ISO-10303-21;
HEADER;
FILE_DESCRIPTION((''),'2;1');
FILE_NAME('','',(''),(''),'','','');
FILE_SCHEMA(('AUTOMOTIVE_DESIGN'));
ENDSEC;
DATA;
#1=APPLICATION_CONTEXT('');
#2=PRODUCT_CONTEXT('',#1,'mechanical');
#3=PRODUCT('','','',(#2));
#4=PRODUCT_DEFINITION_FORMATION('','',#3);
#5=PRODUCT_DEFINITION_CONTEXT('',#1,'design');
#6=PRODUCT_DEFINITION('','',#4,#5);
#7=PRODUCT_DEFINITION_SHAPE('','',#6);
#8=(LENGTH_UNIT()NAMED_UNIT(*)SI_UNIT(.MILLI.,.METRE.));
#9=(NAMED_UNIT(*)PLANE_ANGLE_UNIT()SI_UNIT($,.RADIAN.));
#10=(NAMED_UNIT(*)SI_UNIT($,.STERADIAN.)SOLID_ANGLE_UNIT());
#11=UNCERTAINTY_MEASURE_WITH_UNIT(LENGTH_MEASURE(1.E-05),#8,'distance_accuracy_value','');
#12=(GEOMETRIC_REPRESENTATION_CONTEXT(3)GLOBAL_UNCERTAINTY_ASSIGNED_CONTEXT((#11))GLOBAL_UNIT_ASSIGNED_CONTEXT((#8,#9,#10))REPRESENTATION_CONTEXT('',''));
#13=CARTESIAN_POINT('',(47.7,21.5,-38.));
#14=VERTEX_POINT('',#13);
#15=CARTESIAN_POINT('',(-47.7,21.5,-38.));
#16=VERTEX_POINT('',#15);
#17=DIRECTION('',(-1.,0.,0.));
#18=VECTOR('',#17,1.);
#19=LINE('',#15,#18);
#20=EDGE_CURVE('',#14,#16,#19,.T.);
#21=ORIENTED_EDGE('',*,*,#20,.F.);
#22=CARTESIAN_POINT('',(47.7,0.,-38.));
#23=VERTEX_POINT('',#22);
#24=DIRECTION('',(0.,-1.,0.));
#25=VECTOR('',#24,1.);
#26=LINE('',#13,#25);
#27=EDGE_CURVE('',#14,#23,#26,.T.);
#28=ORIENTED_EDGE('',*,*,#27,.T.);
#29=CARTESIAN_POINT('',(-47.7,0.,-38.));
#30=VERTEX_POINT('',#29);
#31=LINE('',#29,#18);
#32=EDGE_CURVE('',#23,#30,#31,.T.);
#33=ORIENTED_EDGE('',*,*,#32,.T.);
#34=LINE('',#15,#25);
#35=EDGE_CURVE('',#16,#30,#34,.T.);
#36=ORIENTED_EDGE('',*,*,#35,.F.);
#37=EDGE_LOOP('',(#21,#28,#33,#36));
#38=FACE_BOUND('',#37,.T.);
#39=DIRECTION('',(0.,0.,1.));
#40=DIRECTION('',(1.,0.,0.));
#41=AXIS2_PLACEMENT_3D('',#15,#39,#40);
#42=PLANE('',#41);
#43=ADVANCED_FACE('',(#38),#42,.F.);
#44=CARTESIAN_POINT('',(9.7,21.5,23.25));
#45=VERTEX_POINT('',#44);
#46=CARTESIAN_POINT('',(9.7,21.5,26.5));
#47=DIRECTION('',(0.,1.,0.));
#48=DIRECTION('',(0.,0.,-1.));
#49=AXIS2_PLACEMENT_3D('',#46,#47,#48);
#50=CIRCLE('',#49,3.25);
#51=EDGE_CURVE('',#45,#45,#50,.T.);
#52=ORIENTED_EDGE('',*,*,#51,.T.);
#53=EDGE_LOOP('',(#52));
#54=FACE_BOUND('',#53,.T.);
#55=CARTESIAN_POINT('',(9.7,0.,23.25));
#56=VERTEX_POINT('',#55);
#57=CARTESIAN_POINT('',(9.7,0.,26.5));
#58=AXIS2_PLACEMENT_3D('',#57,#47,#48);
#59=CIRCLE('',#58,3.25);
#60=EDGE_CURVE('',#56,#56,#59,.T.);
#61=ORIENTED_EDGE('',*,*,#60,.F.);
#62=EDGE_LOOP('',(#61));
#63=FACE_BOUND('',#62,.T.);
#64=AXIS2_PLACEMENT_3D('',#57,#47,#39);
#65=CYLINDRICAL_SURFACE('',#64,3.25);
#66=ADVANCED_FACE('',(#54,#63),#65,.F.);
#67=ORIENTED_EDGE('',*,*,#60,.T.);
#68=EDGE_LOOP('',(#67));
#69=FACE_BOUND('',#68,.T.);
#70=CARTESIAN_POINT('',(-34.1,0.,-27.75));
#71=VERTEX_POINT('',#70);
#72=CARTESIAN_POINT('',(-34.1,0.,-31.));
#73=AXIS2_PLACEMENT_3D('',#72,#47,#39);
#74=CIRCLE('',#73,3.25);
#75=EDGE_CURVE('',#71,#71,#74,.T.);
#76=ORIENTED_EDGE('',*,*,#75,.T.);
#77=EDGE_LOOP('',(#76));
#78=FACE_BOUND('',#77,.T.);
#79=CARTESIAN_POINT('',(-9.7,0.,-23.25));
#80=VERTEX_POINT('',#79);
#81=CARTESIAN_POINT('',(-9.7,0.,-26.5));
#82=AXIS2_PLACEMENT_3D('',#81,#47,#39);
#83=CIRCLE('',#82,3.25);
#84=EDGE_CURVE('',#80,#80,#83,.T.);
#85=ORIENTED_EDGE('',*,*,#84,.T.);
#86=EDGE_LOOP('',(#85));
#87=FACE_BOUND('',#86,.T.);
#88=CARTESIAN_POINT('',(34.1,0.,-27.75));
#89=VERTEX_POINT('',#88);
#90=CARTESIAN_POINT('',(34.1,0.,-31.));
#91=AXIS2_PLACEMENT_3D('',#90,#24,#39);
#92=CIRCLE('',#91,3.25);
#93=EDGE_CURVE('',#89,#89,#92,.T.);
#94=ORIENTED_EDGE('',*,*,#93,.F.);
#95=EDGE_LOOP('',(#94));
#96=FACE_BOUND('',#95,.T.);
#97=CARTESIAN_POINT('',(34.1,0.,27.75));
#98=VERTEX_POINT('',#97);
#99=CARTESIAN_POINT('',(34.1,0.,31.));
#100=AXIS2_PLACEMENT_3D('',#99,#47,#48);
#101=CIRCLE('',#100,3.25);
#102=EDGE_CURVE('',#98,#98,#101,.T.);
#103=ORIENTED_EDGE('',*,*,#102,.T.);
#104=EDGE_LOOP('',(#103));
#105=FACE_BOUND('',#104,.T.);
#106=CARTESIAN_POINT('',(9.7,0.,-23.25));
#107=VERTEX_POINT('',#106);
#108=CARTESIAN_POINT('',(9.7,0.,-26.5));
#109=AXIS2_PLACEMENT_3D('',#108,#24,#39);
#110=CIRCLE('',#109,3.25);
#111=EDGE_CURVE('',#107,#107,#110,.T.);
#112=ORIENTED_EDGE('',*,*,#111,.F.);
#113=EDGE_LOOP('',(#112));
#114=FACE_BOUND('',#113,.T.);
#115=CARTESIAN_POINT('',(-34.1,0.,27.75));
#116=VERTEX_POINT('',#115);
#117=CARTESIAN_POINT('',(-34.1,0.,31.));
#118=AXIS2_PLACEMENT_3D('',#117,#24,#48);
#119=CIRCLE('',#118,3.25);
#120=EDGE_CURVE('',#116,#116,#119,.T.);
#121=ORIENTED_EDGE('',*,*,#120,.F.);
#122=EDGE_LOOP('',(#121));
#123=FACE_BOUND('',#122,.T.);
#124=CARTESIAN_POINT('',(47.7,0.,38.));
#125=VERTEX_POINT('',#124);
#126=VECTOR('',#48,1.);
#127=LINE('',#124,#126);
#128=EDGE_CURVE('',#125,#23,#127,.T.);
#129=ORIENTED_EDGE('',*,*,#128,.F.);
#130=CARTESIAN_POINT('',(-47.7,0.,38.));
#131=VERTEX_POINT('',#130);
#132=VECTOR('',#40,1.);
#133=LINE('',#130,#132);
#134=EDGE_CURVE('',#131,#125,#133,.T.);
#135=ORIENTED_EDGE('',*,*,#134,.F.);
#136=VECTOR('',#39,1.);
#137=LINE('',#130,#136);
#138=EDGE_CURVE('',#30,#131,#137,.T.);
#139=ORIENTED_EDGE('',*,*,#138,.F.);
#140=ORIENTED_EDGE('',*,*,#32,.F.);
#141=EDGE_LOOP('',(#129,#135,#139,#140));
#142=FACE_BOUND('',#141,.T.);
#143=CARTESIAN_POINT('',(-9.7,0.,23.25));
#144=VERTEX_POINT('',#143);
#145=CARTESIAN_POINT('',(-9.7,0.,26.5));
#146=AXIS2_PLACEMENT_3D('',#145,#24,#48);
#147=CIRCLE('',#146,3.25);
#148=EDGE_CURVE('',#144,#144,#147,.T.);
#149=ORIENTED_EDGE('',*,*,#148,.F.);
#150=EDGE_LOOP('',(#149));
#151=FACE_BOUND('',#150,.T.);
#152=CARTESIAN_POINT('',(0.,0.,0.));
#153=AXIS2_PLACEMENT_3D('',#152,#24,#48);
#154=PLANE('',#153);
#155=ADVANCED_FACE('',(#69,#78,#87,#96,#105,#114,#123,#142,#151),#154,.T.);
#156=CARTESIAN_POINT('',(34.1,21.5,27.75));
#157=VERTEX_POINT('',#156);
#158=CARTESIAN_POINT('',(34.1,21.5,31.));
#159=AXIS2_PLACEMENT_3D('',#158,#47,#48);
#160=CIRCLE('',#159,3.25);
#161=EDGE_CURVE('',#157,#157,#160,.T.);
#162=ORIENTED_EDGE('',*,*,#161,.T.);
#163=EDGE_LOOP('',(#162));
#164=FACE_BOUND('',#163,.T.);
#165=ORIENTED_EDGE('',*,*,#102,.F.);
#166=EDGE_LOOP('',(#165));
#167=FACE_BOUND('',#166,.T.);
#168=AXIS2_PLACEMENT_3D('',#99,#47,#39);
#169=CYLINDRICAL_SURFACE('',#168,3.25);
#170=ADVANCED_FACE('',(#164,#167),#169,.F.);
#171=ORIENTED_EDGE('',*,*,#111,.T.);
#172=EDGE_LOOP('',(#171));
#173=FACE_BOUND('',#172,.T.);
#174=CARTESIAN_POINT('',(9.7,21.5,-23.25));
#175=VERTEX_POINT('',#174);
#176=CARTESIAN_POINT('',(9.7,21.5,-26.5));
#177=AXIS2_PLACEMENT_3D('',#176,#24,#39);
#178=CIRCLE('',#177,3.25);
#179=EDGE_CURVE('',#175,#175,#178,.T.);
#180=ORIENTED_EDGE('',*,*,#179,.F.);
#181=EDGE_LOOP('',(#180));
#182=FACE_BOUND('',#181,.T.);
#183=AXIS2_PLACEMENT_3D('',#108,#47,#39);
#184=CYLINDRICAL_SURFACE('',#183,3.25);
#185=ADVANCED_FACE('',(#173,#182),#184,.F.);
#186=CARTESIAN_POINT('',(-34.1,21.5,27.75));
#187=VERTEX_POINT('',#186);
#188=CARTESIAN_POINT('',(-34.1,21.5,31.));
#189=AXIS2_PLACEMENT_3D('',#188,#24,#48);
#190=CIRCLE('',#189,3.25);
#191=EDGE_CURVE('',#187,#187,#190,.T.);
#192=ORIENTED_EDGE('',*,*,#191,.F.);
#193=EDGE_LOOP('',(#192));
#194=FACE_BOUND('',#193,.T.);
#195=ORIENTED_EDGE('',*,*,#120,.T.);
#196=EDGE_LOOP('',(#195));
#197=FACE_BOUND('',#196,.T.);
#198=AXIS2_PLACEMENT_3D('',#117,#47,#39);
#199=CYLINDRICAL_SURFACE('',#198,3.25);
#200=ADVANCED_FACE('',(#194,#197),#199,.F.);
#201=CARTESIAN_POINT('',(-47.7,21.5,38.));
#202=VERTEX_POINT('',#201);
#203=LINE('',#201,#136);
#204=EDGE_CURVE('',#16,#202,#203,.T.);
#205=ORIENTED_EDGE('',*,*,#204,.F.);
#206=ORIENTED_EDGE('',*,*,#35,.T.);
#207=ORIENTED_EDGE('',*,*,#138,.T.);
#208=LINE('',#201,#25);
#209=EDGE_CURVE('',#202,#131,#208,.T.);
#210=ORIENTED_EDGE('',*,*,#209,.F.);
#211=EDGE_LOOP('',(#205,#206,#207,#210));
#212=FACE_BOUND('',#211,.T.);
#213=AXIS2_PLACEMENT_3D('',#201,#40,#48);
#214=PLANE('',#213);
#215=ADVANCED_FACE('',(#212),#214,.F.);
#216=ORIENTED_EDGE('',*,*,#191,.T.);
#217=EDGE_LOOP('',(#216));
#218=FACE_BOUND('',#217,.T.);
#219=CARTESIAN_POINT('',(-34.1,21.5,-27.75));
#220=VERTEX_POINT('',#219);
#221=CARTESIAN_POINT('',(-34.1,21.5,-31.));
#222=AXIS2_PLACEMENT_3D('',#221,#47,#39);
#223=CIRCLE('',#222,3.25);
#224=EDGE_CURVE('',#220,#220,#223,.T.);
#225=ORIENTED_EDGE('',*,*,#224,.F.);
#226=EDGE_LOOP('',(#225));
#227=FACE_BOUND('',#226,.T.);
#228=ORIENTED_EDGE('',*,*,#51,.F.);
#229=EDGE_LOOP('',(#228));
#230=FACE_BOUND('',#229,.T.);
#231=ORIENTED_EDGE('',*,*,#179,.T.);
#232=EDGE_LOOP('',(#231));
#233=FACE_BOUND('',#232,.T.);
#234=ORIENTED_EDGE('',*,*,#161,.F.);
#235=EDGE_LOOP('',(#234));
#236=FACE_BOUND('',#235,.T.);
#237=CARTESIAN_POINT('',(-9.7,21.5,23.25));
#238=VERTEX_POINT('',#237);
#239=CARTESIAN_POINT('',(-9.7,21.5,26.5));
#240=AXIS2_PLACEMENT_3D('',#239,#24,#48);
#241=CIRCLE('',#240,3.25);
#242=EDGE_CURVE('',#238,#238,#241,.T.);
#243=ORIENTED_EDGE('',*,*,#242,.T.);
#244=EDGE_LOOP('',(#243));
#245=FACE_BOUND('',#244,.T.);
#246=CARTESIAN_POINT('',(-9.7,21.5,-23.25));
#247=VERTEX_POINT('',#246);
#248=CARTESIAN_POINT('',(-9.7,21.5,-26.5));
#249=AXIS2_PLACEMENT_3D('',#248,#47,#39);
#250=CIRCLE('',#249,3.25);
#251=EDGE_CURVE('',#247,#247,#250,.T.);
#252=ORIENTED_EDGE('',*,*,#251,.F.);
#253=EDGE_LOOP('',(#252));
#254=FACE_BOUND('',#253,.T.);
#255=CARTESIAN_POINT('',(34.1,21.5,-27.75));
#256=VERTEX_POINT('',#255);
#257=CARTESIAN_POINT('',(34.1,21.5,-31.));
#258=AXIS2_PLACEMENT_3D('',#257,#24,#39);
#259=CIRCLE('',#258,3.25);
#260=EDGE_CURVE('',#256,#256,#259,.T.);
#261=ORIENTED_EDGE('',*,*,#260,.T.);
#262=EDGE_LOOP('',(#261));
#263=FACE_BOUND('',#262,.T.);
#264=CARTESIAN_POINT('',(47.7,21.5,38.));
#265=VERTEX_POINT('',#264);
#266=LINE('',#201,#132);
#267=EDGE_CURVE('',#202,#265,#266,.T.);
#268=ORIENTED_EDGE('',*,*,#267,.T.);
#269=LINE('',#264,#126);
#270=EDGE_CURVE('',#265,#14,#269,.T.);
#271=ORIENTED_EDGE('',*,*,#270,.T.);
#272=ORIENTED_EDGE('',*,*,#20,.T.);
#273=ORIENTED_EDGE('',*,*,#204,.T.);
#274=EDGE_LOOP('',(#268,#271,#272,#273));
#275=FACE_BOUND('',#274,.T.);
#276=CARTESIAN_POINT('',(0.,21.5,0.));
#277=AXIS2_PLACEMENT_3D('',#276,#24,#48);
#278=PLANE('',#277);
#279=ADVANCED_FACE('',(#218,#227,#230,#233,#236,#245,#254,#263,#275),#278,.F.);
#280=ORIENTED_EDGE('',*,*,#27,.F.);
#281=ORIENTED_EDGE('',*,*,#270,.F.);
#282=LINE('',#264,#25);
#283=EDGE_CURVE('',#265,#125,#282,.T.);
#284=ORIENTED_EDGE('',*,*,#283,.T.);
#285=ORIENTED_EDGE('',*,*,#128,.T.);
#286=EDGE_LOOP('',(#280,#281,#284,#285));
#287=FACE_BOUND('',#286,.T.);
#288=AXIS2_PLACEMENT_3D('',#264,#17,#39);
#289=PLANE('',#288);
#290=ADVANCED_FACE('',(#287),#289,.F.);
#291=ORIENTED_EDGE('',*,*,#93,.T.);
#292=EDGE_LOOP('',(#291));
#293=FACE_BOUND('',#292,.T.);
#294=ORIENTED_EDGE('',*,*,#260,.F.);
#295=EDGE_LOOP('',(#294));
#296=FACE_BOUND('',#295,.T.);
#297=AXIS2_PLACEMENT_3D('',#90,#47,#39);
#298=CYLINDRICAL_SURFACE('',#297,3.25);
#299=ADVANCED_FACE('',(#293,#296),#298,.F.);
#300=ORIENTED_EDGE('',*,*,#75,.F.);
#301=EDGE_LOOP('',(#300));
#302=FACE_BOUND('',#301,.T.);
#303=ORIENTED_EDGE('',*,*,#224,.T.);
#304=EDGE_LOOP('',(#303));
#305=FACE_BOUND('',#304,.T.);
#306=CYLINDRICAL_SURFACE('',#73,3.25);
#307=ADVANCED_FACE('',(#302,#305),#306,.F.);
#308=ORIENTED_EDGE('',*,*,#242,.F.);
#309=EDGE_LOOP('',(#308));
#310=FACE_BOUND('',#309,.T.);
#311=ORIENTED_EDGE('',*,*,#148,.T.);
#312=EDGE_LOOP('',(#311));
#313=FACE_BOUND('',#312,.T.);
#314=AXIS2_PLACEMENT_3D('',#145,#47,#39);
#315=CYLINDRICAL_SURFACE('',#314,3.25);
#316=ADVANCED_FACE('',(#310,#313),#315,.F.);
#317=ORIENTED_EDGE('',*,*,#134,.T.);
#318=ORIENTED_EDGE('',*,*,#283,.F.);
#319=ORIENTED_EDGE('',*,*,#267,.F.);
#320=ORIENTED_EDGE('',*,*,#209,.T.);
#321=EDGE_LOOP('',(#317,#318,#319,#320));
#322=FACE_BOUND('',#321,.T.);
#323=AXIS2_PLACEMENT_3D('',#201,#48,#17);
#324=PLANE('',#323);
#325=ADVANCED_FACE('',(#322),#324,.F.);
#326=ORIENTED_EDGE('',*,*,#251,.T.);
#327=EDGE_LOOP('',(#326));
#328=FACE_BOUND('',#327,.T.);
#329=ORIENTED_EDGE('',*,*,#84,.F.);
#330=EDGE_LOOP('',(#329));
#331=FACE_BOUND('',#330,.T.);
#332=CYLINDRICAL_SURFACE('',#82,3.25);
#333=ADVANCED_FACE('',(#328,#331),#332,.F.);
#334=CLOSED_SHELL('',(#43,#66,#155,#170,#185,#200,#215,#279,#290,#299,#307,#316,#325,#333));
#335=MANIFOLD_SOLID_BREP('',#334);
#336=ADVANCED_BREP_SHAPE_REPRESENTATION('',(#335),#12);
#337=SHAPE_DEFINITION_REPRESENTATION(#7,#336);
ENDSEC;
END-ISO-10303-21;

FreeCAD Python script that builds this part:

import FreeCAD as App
import Part
import Sketcher

V = App.Vector

doc = App.newDocument("Part")
body = doc.addObject("PartDesign::Body", "Body")

sketch1 = doc.addObject("Sketcher::SketchObject", "Sketch")
body.addObject(sketch1)
sketch1.AttachmentSupport = (doc.XZ_Plane, [""])
sketch1.MapMode = "FlatFace"
sketch1.addGeometry(Part.LineSegment(V(-48, -38, 0), V(-48, 38, 0)), False)
sketch1.addGeometry(Part.LineSegment(V(-48, 38, 0), V(48, 38, 0)), False)
sketch1.addGeometry(Part.LineSegment(V(48, 38, 0), V(48, -38, 0)), False)
sketch1.addGeometry(Part.LineSegment(V(48, -38, 0), V(-48, -38, 0)), False)
sketch1.addConstraint(Sketcher.Constraint("Coincident", 0, 2, 1, 1))
sketch1.addConstraint(Sketcher.Constraint("Coincident", 1, 2, 2, 1))
sketch1.addConstraint(Sketcher.Constraint("Coincident", 2, 2, 3, 1))
sketch1.addConstraint(Sketcher.Constraint("Coincident", 3, 2, 0, 1))
sketch1.addConstraint(Sketcher.Constraint("Vertical", 0))
sketch1.addConstraint(Sketcher.Constraint("Horizontal", 1))
sketch1.addConstraint(Sketcher.Constraint("Vertical", 2))
sketch1.addConstraint(Sketcher.Constraint("Horizontal", 3))
sketch1.addConstraint(Sketcher.Constraint("Symmetric", 0, 2, 2, 2, -1, 1))
sketch1.addConstraint(Sketcher.Constraint("DistanceY", 0, 1, 0, 2, 76.0))
sketch1.addConstraint(Sketcher.Constraint("DistanceX", 1, 1, 1, 2, 95.4))
pad1 = doc.addObject("PartDesign::Pad", "Pad")
body.addObject(pad1)
pad1.Profile = sketch1
pad1.Length = 21.5
pad1.Reversed = True

sketch2 = doc.addObject("Sketcher::SketchObject", "Sketch001")
body.addObject(sketch2)
sketch2.AttachmentSupport = (doc.XZ_Plane, [""])
sketch2.MapMode = "FlatFace"
sketch2.AttachmentOffset = App.Placement(V(0, 0, -21.5), App.Rotation())
sketch2.addGeometry(Part.Circle(V(-34.1, -31, 0), V(0, 0, 1), 3.2), False)
sketch2.addGeometry(Part.Circle(V(-9.7, -26.5, 0), V(0, 0, 1), 3.2), False)
sketch2.addConstraint(Sketcher.Constraint("Equal", 0, 1))
sketch2.addConstraint(Sketcher.Constraint("Diameter", 0, 6.5))
sketch2.addConstraint(Sketcher.Constraint("DistanceY", 0, 3, -1, 1, 31.0))
sketch2.addConstraint(Sketcher.Constraint("DistanceX", 0, 3, -1, 1, 34.1))
sketch2.addConstraint(Sketcher.Constraint("DistanceX", 1, 3, -1, 1, 9.7))
sketch2.addConstraint(Sketcher.Constraint("DistanceY", 1, 3, -1, 1, 26.5))
pocket1 = doc.addObject("PartDesign::Pocket", "Pocket")
body.addObject(pocket1)
pocket1.Profile = sketch2
pocket1.Type = "ThroughAll"
pocket1.Reversed = True
doc.recompute()

mirrored = doc.addObject("PartDesign::Mirrored", "Mirrored")
body.addObject(mirrored)
mirrored.Originals = [pocket1]
mirrored.MirrorPlane = (doc.YZ_Plane, [""])
body.Tip = mirrored
doc.recompute()

mirrored2 = doc.addObject("PartDesign::Mirrored", "Mirrored001")
body.addObject(mirrored2)
mirrored2.Originals = [pocket1]
mirrored2.MirrorPlane = (doc.XY_Plane, [""])
body.Tip = mirrored2

sketch3 = doc.addObject("Sketcher::SketchObject", "Sketch002")
body.addObject(sketch3)
sketch3.AttachmentSupport = (doc.XZ_Plane, [""])
sketch3.MapMode = "FlatFace"
sketch3.AttachmentOffset = App.Placement(V(0, 0, -21.5), App.Rotation())
sketch3.addGeometry(Part.Circle(V(34.1, 31, 0), V(0, 0, 1), 3.2), False)
sketch3.addGeometry(Part.Circle(V(9.7, 26.5, 0), V(0, 0, 1), 3.2), False)
sketch3.addConstraint(Sketcher.Constraint("Equal", 0, 1))
sketch3.addConstraint(Sketcher.Constraint("Diameter", 0, 6.5))
sketch3.addConstraint(Sketcher.Constraint("DistanceY", -1, 1, 0, 3, 31.0))
sketch3.addConstraint(Sketcher.Constraint("DistanceX", -1, 1, 0, 3, 34.1))
sketch3.addConstraint(Sketcher.Constraint("DistanceX", -1, 1, 1, 3, 9.7))
sketch3.addConstraint(Sketcher.Constraint("DistanceY", -1, 1, 1, 3, 26.5))
pocket2 = doc.addObject("PartDesign::Pocket", "Pocket001")
body.addObject(pocket2)
pocket2.Profile = sketch3
pocket2.Type = "ThroughAll"
pocket2.Reversed = True

doc.recompute()
